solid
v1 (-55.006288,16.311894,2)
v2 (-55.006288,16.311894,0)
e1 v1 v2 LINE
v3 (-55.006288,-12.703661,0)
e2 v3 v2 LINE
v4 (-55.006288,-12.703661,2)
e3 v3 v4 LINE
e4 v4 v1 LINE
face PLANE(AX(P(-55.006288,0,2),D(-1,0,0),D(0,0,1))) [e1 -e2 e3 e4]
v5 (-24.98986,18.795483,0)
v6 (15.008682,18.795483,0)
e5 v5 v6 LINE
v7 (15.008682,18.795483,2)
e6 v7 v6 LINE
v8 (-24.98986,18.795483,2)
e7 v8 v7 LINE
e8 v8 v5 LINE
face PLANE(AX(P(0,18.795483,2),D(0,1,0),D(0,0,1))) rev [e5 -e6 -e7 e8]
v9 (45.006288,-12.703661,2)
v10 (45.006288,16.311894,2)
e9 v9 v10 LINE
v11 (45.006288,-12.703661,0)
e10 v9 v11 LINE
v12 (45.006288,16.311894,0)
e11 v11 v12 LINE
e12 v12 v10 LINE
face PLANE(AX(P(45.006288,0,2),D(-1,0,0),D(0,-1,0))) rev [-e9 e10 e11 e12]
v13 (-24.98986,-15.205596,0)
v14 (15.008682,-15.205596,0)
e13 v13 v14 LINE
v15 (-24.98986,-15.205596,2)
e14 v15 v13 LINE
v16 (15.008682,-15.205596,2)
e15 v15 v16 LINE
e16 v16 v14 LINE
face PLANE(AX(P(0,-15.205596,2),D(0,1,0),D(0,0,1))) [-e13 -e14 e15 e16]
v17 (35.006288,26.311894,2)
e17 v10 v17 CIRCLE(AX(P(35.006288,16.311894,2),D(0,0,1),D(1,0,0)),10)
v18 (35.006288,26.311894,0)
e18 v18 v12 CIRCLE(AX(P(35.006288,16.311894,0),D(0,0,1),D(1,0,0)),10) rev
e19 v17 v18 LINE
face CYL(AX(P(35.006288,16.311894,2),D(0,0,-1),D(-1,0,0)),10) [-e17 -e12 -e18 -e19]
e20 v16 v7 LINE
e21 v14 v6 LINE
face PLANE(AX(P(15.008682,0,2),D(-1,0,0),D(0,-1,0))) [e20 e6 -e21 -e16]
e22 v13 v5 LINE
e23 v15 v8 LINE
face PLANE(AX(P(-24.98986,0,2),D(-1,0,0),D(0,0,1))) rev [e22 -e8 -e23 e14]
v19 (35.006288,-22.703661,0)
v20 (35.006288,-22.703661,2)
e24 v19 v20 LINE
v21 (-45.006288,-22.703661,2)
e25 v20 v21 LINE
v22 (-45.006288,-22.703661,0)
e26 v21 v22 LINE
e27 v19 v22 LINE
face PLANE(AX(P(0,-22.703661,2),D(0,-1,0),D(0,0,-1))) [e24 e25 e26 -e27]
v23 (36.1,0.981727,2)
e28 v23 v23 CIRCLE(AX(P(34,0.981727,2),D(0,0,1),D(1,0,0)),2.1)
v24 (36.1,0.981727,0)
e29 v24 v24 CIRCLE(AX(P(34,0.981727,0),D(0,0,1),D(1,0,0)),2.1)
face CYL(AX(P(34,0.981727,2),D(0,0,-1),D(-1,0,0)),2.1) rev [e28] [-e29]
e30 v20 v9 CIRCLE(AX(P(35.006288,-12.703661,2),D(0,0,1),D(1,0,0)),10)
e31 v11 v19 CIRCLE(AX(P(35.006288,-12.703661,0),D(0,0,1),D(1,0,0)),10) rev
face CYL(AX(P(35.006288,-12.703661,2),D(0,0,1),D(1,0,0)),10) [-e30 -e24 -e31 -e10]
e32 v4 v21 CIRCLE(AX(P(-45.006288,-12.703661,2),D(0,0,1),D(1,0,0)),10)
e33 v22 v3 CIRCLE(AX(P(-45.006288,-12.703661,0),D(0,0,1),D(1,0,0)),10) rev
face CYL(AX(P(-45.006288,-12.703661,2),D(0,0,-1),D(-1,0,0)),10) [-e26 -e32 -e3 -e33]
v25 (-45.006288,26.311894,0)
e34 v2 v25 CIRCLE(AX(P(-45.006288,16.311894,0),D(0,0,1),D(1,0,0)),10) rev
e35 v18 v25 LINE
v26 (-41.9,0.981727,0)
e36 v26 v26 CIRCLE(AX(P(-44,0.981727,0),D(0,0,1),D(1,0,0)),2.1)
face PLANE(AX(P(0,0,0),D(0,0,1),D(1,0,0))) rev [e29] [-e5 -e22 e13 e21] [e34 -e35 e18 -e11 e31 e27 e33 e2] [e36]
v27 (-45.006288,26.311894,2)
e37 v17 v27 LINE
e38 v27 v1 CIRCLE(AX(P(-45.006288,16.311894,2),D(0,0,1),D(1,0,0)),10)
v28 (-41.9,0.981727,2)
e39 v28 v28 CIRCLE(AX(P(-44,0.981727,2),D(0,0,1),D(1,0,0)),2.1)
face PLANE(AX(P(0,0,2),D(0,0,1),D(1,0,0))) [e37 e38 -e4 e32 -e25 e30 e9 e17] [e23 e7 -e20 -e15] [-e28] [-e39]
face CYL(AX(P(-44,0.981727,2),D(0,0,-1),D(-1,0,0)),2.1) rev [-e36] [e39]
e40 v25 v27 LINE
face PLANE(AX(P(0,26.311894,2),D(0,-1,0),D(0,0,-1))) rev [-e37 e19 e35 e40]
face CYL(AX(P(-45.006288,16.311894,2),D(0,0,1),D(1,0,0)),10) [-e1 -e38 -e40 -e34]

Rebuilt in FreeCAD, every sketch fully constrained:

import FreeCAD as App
import Part
import Sketcher
from FreeCAD import Vector


def edges_at(feature, points):
    """Names of the edges that pass closest to the given points."""
    edges = feature.Shape.Edges
    near = lambda p: min(range(len(edges)), key=lambda i: edges[i].distToShape(Part.Vertex(*p))[0])
    return sorted({f"Edge{near(p) + 1}" for p in points})


def add_polygon(sketch, points):
    """Adds a closed chain of lines whose ends are joined by coincident constraints."""
    first, n = sketch.GeometryCount, len(points)
    for a, b in zip(points, points[1:] + points[:1]):
        sketch.addGeometry(Part.LineSegment(App.Vector(*a, 0), App.Vector(*b, 0)), False)
    for i in range(n):
        sketch.addConstraint(Sketcher.Constraint("Coincident", first + i, 2, first + (i + 1) % n, 1))

doc = App.newDocument("Part")
body = doc.addObject("PartDesign::Body", "Body")

# Sketch on XY plane
sketch1 = body.newObject("Sketcher::SketchObject", "Sketch")
sketch1.AttachmentSupport = (doc.getObject("XY_Plane"), [""])
sketch1.MapMode = "FlatFace"
add_polygon(sketch1, [(-55, 26.3), (-55, -22.7), (45, -22.7), (45, 26.3)])  # lines 0-3
sketch1.addGeometry(Part.Circle(Vector(-44, 1, 0), Vector(0, 0, 1), 2.1), False)  # 4
sketch1.addGeometry(Part.Circle(Vector(34, 1, 0), Vector(0, 0, 1), 2.1), False)  # 5
add_polygon(sketch1, [(15, -15.2), (-25, -15.2), (-25, 18.8), (15, 18.8)])  # lines 6-9
sketch1.addConstraint(Sketcher.Constraint("Vertical", 0))
sketch1.addConstraint(Sketcher.Constraint("Horizontal", 1))
sketch1.addConstraint(Sketcher.Constraint("Vertical", 2))
sketch1.addConstraint(Sketcher.Constraint("Horizontal", 3))
sketch1.addConstraint(Sketcher.Constraint("Horizontal", 6))
sketch1.addConstraint(Sketcher.Constraint("Vertical", 7))
sketch1.addConstraint(Sketcher.Constraint("Horizontal", 8))
sketch1.addConstraint(Sketcher.Constraint("Vertical", 9))
sketch1.addConstraint(Sketcher.Constraint("Equal", 4, 5))
sketch1.addConstraint(Sketcher.Constraint("Horizontal", 4, 3, 5, 3))
sketch1.addConstraint(Sketcher.Constraint("Diameter", 4, 4.2))
sketch1.addConstraint(Sketcher.Constraint("DistanceX", 4, 3, -1, 1, 44.0))
sketch1.addConstraint(Sketcher.Constraint("DistanceX", -1, 1, 5, 3, 34.0))
sketch1.addConstraint(Sketcher.Constraint("DistanceX", 6, 2, 6, 1, 39.998542))
sketch1.addConstraint(Sketcher.Constraint("DistanceY", 7, 1, 7, 2, 34.001079))
sketch1.addConstraint(Sketcher.Constraint("DistanceX", 1, 1, 1, 2, 100.012576))
sketch1.addConstraint(Sketcher.Constraint("DistanceY", 0, 2, 0, 1, 49.015555))
sketch1.addConstraint(Sketcher.Constraint("DistanceX", 0, 2, -1, 1, 55.006288))
sketch1.addConstraint(Sketcher.Constraint("DistanceY", 0, 2, -1, 1, 22.703661))
sketch1.addConstraint(Sketcher.Constraint("DistanceX", 6, 2, -1, 1, 24.98986))
sketch1.addConstraint(Sketcher.Constraint("DistanceY", 0, 2, 4, 3, 23.685388))
sketch1.addConstraint(Sketcher.Constraint("DistanceY", 6, 2, 3, 2, 41.51749))
pad1 = body.newObject("PartDesign::Pad", "Pad")
pad1.Profile = sketch1
pad1.Length = 2
doc.recompute()

fillet = body.newObject("PartDesign::Fillet", "Fillet")
fillet.Base = (pad1, edges_at(pad1, [
    (-55.006, 26.312, 1),
    (45.006, 26.312, 1),
    (45.006, -22.704, 1),
    (-55.006, -22.704, 1),
]))
fillet.Radius = 10

doc.recompute()
